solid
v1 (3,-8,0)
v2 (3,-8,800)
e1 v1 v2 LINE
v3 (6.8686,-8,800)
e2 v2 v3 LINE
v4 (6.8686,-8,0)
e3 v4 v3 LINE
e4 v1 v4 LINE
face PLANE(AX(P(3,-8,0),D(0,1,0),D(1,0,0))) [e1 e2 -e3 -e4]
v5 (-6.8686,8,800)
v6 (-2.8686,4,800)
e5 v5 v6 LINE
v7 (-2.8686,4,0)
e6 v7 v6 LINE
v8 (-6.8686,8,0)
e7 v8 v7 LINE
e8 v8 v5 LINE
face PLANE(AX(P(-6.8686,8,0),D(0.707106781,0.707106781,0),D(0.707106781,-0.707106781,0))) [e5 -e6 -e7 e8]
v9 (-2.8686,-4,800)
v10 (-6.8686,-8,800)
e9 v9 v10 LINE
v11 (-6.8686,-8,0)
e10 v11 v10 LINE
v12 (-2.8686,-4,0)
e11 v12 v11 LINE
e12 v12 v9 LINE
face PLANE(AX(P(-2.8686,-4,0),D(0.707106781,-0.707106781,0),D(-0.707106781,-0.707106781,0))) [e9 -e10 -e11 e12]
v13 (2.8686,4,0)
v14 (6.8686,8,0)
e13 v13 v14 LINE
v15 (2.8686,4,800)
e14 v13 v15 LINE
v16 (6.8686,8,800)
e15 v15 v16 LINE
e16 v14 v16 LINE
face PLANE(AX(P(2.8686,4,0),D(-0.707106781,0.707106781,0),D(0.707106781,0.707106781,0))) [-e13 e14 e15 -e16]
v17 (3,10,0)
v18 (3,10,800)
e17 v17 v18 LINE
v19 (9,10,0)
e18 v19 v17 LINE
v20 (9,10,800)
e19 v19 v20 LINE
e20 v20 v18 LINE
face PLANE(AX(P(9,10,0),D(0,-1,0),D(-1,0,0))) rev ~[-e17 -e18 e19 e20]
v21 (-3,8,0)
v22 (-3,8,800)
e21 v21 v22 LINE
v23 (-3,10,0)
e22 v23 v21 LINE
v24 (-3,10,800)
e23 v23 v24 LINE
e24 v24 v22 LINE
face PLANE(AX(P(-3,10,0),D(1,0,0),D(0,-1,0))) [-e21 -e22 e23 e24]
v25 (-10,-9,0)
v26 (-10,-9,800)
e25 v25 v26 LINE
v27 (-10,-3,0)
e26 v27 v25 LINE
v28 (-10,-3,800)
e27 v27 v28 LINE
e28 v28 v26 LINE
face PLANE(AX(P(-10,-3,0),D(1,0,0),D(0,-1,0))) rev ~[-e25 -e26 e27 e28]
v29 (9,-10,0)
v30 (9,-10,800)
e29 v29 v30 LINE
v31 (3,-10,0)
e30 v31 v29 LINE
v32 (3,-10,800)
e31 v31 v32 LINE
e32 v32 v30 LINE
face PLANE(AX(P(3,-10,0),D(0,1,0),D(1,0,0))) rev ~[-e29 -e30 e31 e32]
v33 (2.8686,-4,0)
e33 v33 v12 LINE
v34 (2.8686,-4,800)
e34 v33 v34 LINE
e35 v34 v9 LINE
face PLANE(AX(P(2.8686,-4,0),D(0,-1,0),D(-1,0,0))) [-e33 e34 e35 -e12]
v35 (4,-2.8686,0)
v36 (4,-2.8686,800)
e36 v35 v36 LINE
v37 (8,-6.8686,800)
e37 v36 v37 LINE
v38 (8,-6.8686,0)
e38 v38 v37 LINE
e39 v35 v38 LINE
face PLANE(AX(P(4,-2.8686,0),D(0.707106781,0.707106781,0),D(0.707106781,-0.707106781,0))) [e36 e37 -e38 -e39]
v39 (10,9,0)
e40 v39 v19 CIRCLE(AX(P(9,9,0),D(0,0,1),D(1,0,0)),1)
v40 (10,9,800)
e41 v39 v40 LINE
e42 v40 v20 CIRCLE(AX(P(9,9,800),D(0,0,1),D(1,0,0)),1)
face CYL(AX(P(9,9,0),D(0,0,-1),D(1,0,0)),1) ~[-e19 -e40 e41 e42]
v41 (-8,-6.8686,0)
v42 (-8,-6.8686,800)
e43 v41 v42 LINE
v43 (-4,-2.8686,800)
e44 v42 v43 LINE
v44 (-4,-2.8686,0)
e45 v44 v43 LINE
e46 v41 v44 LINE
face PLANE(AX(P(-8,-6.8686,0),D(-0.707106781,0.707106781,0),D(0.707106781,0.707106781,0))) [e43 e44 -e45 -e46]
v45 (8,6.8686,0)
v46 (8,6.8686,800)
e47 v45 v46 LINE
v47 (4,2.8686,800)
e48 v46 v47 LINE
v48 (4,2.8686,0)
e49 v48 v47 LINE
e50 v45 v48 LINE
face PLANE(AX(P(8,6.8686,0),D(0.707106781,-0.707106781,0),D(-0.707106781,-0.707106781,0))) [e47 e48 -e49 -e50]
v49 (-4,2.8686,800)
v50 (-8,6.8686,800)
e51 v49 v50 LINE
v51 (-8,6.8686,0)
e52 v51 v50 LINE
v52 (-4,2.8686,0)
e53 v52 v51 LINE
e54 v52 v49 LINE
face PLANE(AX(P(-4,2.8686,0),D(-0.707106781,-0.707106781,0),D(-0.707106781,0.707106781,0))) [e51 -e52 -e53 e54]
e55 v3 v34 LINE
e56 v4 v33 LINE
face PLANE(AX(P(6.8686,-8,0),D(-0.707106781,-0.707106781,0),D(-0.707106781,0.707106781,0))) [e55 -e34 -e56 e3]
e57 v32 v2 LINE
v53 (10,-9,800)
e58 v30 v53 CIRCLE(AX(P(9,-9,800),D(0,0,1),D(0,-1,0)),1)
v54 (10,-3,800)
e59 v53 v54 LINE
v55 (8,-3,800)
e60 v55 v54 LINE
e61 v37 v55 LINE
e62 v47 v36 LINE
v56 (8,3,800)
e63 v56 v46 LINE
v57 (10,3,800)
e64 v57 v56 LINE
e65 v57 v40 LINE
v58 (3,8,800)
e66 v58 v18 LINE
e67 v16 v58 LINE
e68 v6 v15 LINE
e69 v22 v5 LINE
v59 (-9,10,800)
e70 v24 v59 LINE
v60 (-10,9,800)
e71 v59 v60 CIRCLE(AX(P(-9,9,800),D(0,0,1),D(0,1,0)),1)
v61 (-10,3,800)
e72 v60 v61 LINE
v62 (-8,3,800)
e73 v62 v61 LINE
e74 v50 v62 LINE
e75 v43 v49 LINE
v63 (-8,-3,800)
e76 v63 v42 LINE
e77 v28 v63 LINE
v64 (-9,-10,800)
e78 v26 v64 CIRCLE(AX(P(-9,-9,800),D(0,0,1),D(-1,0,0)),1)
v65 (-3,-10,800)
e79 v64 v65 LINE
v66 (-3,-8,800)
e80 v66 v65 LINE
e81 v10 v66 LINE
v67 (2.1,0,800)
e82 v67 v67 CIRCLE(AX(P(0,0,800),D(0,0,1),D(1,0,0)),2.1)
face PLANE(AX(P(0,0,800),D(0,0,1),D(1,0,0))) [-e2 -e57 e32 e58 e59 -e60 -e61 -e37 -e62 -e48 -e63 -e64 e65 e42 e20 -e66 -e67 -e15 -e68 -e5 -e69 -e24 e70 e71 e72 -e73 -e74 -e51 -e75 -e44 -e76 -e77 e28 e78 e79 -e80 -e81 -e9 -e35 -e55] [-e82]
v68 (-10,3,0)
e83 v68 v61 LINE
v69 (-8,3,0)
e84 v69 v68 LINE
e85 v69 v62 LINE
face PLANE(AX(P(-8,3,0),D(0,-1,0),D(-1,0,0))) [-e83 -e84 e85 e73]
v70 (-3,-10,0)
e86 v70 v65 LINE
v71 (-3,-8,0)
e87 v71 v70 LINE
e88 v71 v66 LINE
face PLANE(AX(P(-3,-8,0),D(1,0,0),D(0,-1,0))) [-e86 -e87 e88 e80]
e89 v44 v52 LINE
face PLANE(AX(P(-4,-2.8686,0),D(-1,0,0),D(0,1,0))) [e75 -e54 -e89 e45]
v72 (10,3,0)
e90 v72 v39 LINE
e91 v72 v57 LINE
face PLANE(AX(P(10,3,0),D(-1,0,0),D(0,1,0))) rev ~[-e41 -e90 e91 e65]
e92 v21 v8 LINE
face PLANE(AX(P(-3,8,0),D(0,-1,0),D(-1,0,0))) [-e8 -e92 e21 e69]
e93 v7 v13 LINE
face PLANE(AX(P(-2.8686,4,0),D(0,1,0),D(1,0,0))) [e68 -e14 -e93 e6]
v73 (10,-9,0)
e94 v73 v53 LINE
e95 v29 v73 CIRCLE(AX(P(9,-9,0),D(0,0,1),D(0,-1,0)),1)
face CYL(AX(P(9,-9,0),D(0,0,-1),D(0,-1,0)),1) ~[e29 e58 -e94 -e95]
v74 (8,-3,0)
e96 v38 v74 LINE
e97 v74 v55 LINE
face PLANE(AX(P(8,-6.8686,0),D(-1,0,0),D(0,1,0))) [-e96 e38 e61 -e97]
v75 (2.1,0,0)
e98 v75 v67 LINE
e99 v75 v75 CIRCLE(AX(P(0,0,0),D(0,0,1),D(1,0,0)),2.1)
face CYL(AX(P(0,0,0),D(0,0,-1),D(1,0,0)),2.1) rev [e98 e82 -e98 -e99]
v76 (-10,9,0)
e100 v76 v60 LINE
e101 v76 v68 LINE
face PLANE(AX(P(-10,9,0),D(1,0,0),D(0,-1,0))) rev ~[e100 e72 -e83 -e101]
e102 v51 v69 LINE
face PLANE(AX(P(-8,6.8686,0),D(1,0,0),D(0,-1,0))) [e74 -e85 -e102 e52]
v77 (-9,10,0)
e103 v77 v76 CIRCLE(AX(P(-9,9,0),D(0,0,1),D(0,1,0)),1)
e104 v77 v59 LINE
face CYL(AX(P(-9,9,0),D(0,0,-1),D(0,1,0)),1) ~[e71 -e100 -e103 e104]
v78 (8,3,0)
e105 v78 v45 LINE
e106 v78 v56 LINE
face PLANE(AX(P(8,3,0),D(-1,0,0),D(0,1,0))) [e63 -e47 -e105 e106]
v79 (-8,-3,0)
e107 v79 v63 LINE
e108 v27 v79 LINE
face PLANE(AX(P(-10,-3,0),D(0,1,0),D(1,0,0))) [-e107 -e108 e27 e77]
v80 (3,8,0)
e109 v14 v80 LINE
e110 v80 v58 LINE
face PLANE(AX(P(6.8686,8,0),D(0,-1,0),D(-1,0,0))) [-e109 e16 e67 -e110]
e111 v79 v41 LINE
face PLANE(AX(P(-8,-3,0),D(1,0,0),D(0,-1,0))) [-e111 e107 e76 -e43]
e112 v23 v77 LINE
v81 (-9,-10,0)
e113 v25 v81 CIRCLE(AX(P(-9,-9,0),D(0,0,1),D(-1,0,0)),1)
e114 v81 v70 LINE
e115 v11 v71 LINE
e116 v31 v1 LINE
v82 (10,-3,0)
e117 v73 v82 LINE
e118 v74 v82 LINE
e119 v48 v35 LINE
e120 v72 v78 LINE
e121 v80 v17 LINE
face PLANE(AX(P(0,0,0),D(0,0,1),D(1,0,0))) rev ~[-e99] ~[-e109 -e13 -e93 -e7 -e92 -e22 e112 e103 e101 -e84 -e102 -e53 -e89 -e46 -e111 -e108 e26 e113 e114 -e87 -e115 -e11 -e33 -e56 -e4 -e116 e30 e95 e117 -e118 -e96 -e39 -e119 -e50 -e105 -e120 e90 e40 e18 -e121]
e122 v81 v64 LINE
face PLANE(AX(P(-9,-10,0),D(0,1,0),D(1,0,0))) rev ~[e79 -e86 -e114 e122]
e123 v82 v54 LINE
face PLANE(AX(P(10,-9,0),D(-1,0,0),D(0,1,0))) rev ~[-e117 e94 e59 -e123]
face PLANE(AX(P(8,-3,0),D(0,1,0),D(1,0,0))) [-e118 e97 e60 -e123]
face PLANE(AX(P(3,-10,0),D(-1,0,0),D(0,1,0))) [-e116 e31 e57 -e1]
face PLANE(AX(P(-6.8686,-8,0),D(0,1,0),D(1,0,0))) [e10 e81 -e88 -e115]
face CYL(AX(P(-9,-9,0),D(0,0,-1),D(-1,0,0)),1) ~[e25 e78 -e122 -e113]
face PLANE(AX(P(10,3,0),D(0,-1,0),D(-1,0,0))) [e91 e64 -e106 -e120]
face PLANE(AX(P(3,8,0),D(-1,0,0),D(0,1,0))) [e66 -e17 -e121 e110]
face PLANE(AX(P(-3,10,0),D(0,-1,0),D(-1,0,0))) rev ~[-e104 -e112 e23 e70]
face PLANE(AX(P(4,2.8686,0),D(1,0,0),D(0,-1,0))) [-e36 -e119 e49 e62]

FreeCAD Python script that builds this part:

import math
import FreeCAD as App
import Part
import Sketcher
from FreeCAD import Vector
Q = App.Units.Quantity

doc = App.newDocument("Part")
body = doc.addObject("PartDesign::Body", "Body")

sketch1 = doc.addObject("Sketcher::SketchObject", "Sketch")
body.addObject(sketch1)
sketch1.AttachmentSupport = (doc.XY_Plane, [""])
sketch1.MapMode = "FlatFace"
sketch1.addGeometry([
    Part.LineSegment(Vector(8, 3, 0), Vector(10, 3, 0)),
    Part.LineSegment(Vector(10, 3, 0), Vector(10, 9, 0)),
    Part.ArcOfCircle(Part.Circle(Vector(9, 9, 0), Vector(0, 0, 1), 1), math.radians(0), math.radians(90)),
    Part.LineSegment(Vector(9, 10, 0), Vector(3, 10, 0)),
    Part.LineSegment(Vector(3, 10, 0), Vector(3, 8, 0)),
    Part.LineSegment(Vector(3, 8, 0), Vector(6.8686, 8, 0)),
    Part.LineSegment(Vector(6.8686, 8, 0), Vector(2.8686, 4, 0)),
    Part.LineSegment(Vector(2.8686, 4, 0), Vector(-2.8686, 4, 0)),
    Part.LineSegment(Vector(-2.8686, 4, 0), Vector(-6.8686, 8, 0)),
    Part.LineSegment(Vector(-6.8686, 8, 0), Vector(-3, 8, 0)),
    Part.LineSegment(Vector(-3, 8, 0), Vector(-3, 10, 0)),
    Part.LineSegment(Vector(-3, 10, 0), Vector(-9, 10, 0)),
    Part.ArcOfCircle(Part.Circle(Vector(-9, 9, 0), Vector(0, 0, 1), 1), math.radians(90), math.radians(180)),
    Part.LineSegment(Vector(-10, 9, 0), Vector(-10, 3, 0)),
    Part.LineSegment(Vector(-10, 3, 0), Vector(-8, 3, 0)),
    Part.LineSegment(Vector(-8, 3, 0), Vector(-8, 6.8686, 0)),
    Part.LineSegment(Vector(-8, 6.8686, 0), Vector(-4, 2.8686, 0)),
    Part.LineSegment(Vector(-4, 2.8686, 0), Vector(-4, -2.8686, 0)),
    Part.LineSegment(Vector(-4, -2.8686, 0), Vector(-8, -6.8686, 0)),
    Part.LineSegment(Vector(-8, -6.8686, 0), Vector(-8, -3, 0)),
    Part.LineSegment(Vector(-8, -3, 0), Vector(-10, -3, 0)),
    Part.LineSegment(Vector(-10, -3, 0), Vector(-10, -9, 0)),
    Part.ArcOfCircle(Part.Circle(Vector(-9, -9, 0), Vector(0, 0, 1), 1), math.radians(180), math.radians(270)),
    Part.LineSegment(Vector(-9, -10, 0), Vector(-3, -10, 0)),
    Part.LineSegment(Vector(-3, -10, 0), Vector(-3, -8, 0)),
    Part.LineSegment(Vector(-3, -8, 0), Vector(-6.8686, -8, 0)),
    Part.LineSegment(Vector(-6.8686, -8, 0), Vector(-2.8686, -4, 0)),
    Part.LineSegment(Vector(-2.8686, -4, 0), Vector(2.8686, -4, 0)),
    Part.LineSegment(Vector(2.8686, -4, 0), Vector(6.8686, -8, 0)),
    Part.LineSegment(Vector(6.8686, -8, 0), Vector(3, -8, 0)),
    Part.LineSegment(Vector(3, -8, 0), Vector(3, -10, 0)),
    Part.LineSegment(Vector(3, -10, 0), Vector(9, -10, 0)),
    Part.ArcOfCircle(Part.Circle(Vector(9, -9, 0), Vector(0, 0, 1), 1), math.radians(-90), math.radians(0)),
    Part.LineSegment(Vector(10, -9, 0), Vector(10, -3, 0)),
    Part.LineSegment(Vector(10, -3, 0), Vector(8, -3, 0)),
    Part.LineSegment(Vector(8, -3, 0), Vector(8, -6.8686, 0)),
    Part.LineSegment(Vector(8, -6.8686, 0), Vector(4, -2.8686, 0)),
    Part.LineSegment(Vector(4, -2.8686, 0), Vector(4, 2.8686, 0)),
    Part.LineSegment(Vector(4, 2.8686, 0), Vector(8, 6.8686, 0)),
    Part.LineSegment(Vector(8, 6.8686, 0), Vector(8, 3, 0)),
    Part.Circle(Vector(0, 0, 0), Vector(0, 0, 1), 2.1),
], False)
sketch1.addConstraint([
    Sketcher.Constraint("Coincident", 0, 2, 1, 1),
    Sketcher.Constraint("Tangent", 1, 2, 2, 1),
    Sketcher.Constraint("Tangent", 2, 2, 3, 1),
    Sketcher.Constraint("Coincident", 3, 2, 4, 1),
    Sketcher.Constraint("Coincident", 4, 2, 5, 1),
    Sketcher.Constraint("Coincident", 5, 2, 6, 1),
    Sketcher.Constraint("Coincident", 6, 2, 7, 1),
    Sketcher.Constraint("Coincident", 7, 2, 8, 1),
    Sketcher.Constraint("Coincident", 8, 2, 9, 1),
    Sketcher.Constraint("Coincident", 9, 2, 10, 1),
    Sketcher.Constraint("Coincident", 10, 2, 11, 1),
    Sketcher.Constraint("Tangent", 11, 2, 12, 1),
    Sketcher.Constraint("Tangent", 12, 2, 13, 1),
    Sketcher.Constraint("Coincident", 13, 2, 14, 1),
    Sketcher.Constraint("Coincident", 14, 2, 15, 1),
    Sketcher.Constraint("Coincident", 15, 2, 16, 1),
    Sketcher.Constraint("Coincident", 16, 2, 17, 1),
    Sketcher.Constraint("Coincident", 17, 2, 18, 1),
    Sketcher.Constraint("Coincident", 18, 2, 19, 1),
    Sketcher.Constraint("Coincident", 19, 2, 20, 1),
    Sketcher.Constraint("Coincident", 20, 2, 21, 1),
    Sketcher.Constraint("Tangent", 21, 2, 22, 1),
    Sketcher.Constraint("Tangent", 22, 2, 23, 1),
    Sketcher.Constraint("Coincident", 23, 2, 24, 1),
    Sketcher.Constraint("Coincident", 24, 2, 25, 1),
    Sketcher.Constraint("Coincident", 25, 2, 26, 1),
    Sketcher.Constraint("Coincident", 26, 2, 27, 1),
    Sketcher.Constraint("Coincident", 27, 2, 28, 1),
    Sketcher.Constraint("Coincident", 28, 2, 29, 1),
    Sketcher.Constraint("Coincident", 29, 2, 30, 1),
    Sketcher.Constraint("Coincident", 30, 2, 31, 1),
    Sketcher.Constraint("Tangent", 31, 2, 32, 1),
    Sketcher.Constraint("Tangent", 32, 2, 33, 1),
    Sketcher.Constraint("Coincident", 33, 2, 34, 1),
    Sketcher.Constraint("Coincident", 34, 2, 35, 1),
    Sketcher.Constraint("Coincident", 35, 2, 36, 1),
    Sketcher.Constraint("Coincident", 36, 2, 37, 1),
    Sketcher.Constraint("Coincident", 37, 2, 38, 1),
    Sketcher.Constraint("Coincident", 38, 2, 39, 1),
    Sketcher.Constraint("Coincident", 39, 2, 0, 1),
    Sketcher.Constraint("Horizontal", 0),
    Sketcher.Constraint("Vertical", 1),
    Sketcher.Constraint("Horizontal", 3),
    Sketcher.Constraint("Vertical", 4),
    Sketcher.Constraint("Horizontal", 5),
    Sketcher.Constraint("Horizontal", 7),
    Sketcher.Constraint("Horizontal", 9),
    Sketcher.Constraint("Vertical", 10),
    Sketcher.Constraint("Horizontal", 11),
    Sketcher.Constraint("Vertical", 13),
    Sketcher.Constraint("Horizontal", 14),
    Sketcher.Constraint("Vertical", 15),
    Sketcher.Constraint("Vertical", 17),
    Sketcher.Constraint("Vertical", 19),
    Sketcher.Constraint("Horizontal", 20),
    Sketcher.Constraint("Vertical", 21),
    Sketcher.Constraint("Horizontal", 23),
    Sketcher.Constraint("Vertical", 24),
    Sketcher.Constraint("Horizontal", 25),
    Sketcher.Constraint("Horizontal", 27),
    Sketcher.Constraint("Horizontal", 29),
    Sketcher.Constraint("Vertical", 30),
    Sketcher.Constraint("Horizontal", 31),
    Sketcher.Constraint("Vertical", 33),
    Sketcher.Constraint("Horizontal", 34),
    Sketcher.Constraint("Vertical", 35),
    Sketcher.Constraint("Vertical", 37),
    Sketcher.Constraint("Vertical", 39),
    Sketcher.Constraint("Coincident", 40, 3, -1, 1),
    Sketcher.Constraint("Equal", 2, 12),
    Sketcher.Constraint("Equal", 12, 22),
    Sketcher.Constraint("Equal", 22, 32),
    Sketcher.Constraint("Symmetric", 2, 3, 22, 3, -1, 1),
    Sketcher.Constraint("Symmetric", 12, 3, 32, 3, -1, 1),
    Sketcher.Constraint("Symmetric", 4, 2, 24, 2, -1, 1),
    Sketcher.Constraint("Symmetric", 6, 2, 26, 2, -1, 1),
    Sketcher.Constraint("Symmetric", 8, 2, 28, 2, -1, 1),
    Sketcher.Constraint("Symmetric", 14, 2, 34, 2, -1, 1),
    Sketcher.Constraint("Symmetric", 16, 2, 36, 2, -1, 1),
    Sketcher.Constraint("Symmetric", 18, 2, 38, 2, -1, 1),
    Sketcher.Constraint("Symmetric", 2, 3, 12, 3, -2),
    Sketcher.Constraint("Symmetric", 5, 2, 8, 2, -2),
    Sketcher.Constraint("Symmetric", 19, 2, 34, 2, -2),
    Sketcher.Constraint("Perpendicular", 6, 8),
    Sketcher.Constraint("Parallel", 8, 16),
    Sketcher.Constraint("Perpendicular", 16, 18),
    Sketcher.Constraint("Parallel", 18, 26),
    Sketcher.Constraint("Perpendicular", 26, 28),
    Sketcher.Constraint("Parallel", 28, 36),
    Sketcher.Constraint("Perpendicular", 36, 38),
    Sketcher.Constraint("Horizontal", 0, 2, 13, 2),
    Sketcher.Constraint("Horizontal", 18, 2, 35, 2),
    Sketcher.Constraint("Horizontal", 17, 2, 36, 2),
    Sketcher.Constraint("Vertical", 10, 2, 23, 2),
    Sketcher.Constraint("Vertical", 4, 2, 29, 2),
    Sketcher.Constraint("Equal", 31, 1),
    Sketcher.Constraint("Equal", 34, 4),
    Sketcher.Constraint("Equal", 29, 15),
    Sketcher.Constraint("Equal", 27, 17),
    Sketcher.Constraint("Equal", 8, 16),
    Sketcher.Constraint("Radius", 2, Q("1 mm")),
    Sketcher.Constraint("Diameter", 40, Q("4.2 mm")),
    Sketcher.Constraint("DistanceX", 0, 1, 0, 2, Q("2 mm")),
    Sketcher.Constraint("DistanceX", 3, 2, 3, 1, Q("6 mm")),
    Sketcher.Constraint("DistanceY", -1, 1, 6, 2, Q("4 mm")),
    Sketcher.Constraint("DistanceY", 6, 2, 4, 2, Q("4 mm")),
    Sketcher.Constraint("DistanceX", 5, 1, 5, 2, Q("3.8686 mm")),
])
pad1 = doc.addObject("PartDesign::Pad", "Pad")
body.addObject(pad1)
pad1.Profile = sketch1
pad1.Length = 800

doc.recompute()
